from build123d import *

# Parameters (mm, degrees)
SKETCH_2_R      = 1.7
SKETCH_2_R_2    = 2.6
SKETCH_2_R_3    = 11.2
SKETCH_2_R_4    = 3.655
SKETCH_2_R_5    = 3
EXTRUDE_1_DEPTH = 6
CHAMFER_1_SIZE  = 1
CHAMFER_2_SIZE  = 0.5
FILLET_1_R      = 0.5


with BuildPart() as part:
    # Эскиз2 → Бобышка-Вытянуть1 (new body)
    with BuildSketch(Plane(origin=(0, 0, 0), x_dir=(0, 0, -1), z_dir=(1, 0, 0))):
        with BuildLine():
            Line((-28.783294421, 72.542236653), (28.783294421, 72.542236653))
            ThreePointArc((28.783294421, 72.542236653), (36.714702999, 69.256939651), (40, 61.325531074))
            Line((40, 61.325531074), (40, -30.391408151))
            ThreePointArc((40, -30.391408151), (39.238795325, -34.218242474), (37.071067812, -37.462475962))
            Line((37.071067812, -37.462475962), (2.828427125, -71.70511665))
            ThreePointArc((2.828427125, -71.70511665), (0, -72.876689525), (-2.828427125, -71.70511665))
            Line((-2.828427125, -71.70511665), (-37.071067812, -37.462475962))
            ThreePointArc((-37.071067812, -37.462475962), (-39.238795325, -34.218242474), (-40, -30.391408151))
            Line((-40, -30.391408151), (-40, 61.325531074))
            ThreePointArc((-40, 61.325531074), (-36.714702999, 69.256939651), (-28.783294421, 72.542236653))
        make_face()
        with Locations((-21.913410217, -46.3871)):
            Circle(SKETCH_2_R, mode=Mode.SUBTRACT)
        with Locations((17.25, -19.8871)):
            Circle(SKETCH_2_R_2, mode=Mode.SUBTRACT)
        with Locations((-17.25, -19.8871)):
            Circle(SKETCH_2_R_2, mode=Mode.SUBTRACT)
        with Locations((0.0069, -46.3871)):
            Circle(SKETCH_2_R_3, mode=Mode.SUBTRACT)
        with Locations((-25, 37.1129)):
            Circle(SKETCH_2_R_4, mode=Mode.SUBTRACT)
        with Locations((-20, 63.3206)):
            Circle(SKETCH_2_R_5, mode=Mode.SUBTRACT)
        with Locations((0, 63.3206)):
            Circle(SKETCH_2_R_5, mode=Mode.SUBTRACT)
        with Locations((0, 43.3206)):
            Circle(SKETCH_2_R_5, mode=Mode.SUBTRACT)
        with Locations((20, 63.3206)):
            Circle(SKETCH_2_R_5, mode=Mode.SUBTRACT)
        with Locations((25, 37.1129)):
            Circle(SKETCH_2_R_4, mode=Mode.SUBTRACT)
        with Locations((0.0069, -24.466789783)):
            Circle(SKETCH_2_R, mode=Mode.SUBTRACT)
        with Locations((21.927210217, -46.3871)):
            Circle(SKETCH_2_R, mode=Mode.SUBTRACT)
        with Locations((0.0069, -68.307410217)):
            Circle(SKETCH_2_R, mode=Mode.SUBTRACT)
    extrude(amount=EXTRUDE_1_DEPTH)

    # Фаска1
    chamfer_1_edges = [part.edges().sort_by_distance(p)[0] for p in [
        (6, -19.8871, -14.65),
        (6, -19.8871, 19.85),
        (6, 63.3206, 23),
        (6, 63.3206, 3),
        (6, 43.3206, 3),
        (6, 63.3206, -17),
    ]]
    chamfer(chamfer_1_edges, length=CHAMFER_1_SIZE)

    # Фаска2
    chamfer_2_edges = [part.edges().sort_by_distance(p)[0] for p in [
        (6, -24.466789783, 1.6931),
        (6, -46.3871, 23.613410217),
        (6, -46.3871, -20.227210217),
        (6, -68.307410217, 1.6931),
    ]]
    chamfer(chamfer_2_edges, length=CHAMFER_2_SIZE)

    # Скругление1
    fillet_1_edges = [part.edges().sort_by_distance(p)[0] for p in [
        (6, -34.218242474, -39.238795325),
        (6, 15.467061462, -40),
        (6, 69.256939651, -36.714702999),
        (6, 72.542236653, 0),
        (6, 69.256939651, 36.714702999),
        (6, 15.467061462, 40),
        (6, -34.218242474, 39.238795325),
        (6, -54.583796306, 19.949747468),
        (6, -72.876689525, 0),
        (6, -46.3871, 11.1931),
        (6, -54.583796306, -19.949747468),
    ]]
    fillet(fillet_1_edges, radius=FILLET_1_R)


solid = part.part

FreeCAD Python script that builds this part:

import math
import FreeCAD as App
import Part
import Sketcher

V = App.Vector


def edges_at(feature, points):
    """Names of the edges that pass closest to the given points."""
    edges = feature.Shape.Edges
    near = lambda p: min(range(len(edges)), key=lambda i: edges[i].distToShape(Part.Vertex(*p))[0])
    return sorted({f"Edge{near(p) + 1}" for p in points})

doc = App.newDocument("Part")
body = doc.addObject("PartDesign::Body", "Body")

# Sketch on YZ plane
sketch1 = body.newObject("Sketcher::SketchObject", "Sketch")
sketch1.AttachmentSupport = (doc.getObject("YZ_Plane"), [""])
sketch1.MapMode = "FlatFace"
sketch1.addGeometry([
    Part.LineSegment(V(72.5, -28.8, 0), V(72.5, 28.8, 0)),  # 0
    Part.ArcOfCircle(Part.Circle(V(61.3, 28.8, 0), V(0, 0, 1), 11.2), math.radians(0), math.radians(90)),  # 1
    Part.LineSegment(V(61.3, 40, 0), V(-30.4, 40, 0)),  # 2
    Part.ArcOfCircle(Part.Circle(V(-30.4, 30, 0), V(0, 0, 1), 10), math.radians(90), math.radians(135)),  # 3
    Part.LineSegment(V(-37.5, 37.1, 0), V(-71.7, 2.8, 0)),  # 4
    Part.ArcOfCircle(Part.Circle(V(-68.9, 0, 0), V(0, 0, 1), 4), math.radians(135), math.radians(225)),  # 5
    Part.LineSegment(V(-71.7, -2.8, 0), V(-37.5, -37.1, 0)),  # 6
    Part.ArcOfCircle(Part.Circle(V(-30.4, -30, 0), V(0, 0, 1), 10), math.radians(-135), math.radians(-90)),  # 7
    Part.LineSegment(V(-30.4, -40, 0), V(61.3, -40, 0)),  # 8
    Part.ArcOfCircle(Part.Circle(V(61.3, -28.8, 0), V(0, 0, 1), 11.2), math.radians(-90), math.radians(0)),  # 9
    Part.Circle(V(-46.4, -21.9, 0), V(0, 0, 1), 1.7),  # 10
    Part.Circle(V(-68.3, 0, 0), V(0, 0, 1), 1.7),  # 11
    Part.Circle(V(-46.4, 0, 0), V(0, 0, 1), 11.2),  # 12
    Part.Circle(V(-19.9, -17.2, 0), V(0, 0, 1), 2.6),  # 13
    Part.Circle(V(-24.5, 0, 0), V(0, 0, 1), 1.7),  # 14
    Part.Circle(V(-46.4, 21.9, 0), V(0, 0, 1), 1.7),  # 15
    Part.Circle(V(-19.9, 17.2, 0), V(0, 0, 1), 2.6),  # 16
    Part.Circle(V(37.1, -25, 0), V(0, 0, 1), 3.7),  # 17
    Part.Circle(V(63.3, -20, 0), V(0, 0, 1), 3),  # 18
    Part.Circle(V(43.3, 0, 0), V(0, 0, 1), 3),  # 19
    Part.Circle(V(63.3, 0, 0), V(0, 0, 1), 3),  # 20
    Part.Circle(V(37.1, 25, 0), V(0, 0, 1), 3.7),  # 21
    Part.Circle(V(63.3, 20, 0), V(0, 0, 1), 3),  # 22
], False)
sketch1.addConstraint([
    Sketcher.Constraint("Tangent", 0, 2, 1, 1),
    Sketcher.Constraint("Tangent", 1, 2, 2, 1),
    Sketcher.Constraint("Tangent", 2, 2, 3, 1),
    Sketcher.Constraint("Tangent", 3, 2, 4, 1),
    Sketcher.Constraint("Tangent", 4, 2, 5, 1),
    Sketcher.Constraint("Tangent", 5, 2, 6, 1),
    Sketcher.Constraint("Tangent", 6, 2, 7, 1),
    Sketcher.Constraint("Tangent", 7, 2, 8, 1),
    Sketcher.Constraint("Tangent", 8, 2, 9, 1),
    Sketcher.Constraint("Tangent", 9, 2, 0, 1),
    Sketcher.Constraint("Vertical", 0),
    Sketcher.Constraint("Horizontal", 2),
    Sketcher.Constraint("Horizontal", 8),
    Sketcher.Constraint("Equal", 3, 7),
    Sketcher.Constraint("Equal", 1, 9),
    Sketcher.Constraint("Equal", 10, 11),
    Sketcher.Constraint("Equal", 11, 14),
    Sketcher.Constraint("Equal", 14, 15),
    Sketcher.Constraint("Equal", 13, 16),
    Sketcher.Constraint("Equal", 18, 19),
    Sketcher.Constraint("Equal", 19, 20),
    Sketcher.Constraint("Equal", 17, 21),
    Sketcher.Constraint("Equal", 20, 22),
    Sketcher.Constraint("Symmetric", 3, 3, 7, 3, -1),
    Sketcher.Constraint("Symmetric", 13, 3, 16, 3, -1),
    Sketcher.Constraint("Symmetric", 17, 3, 21, 3, -1),
    Sketcher.Constraint("Symmetric", 18, 3, 22, 3, -1),
    Sketcher.Constraint("PointOnObject", 5, 3, -1),
    Sketcher.Constraint("PointOnObject", 19, 3, -1),
    Sketcher.Constraint("PointOnObject", 20, 3, -1),
    Sketcher.Constraint("Perpendicular", 4, 6),
    Sketcher.Constraint("Horizontal", 11, 3, 12, 3),
    Sketcher.Constraint("Horizontal", 12, 3, 14, 3),
    Sketcher.Constraint("Vertical", 10, 3, 12, 3),
    Sketcher.Constraint("Vertical", 12, 3, 15, 3),
    Sketcher.Constraint("Vertical", 18, 3, 20, 3),
    Sketcher.Constraint("Diameter", 18, 6.0),
    Sketcher.Constraint("Radius", 3, 10.0),
    Sketcher.Constraint("Radius", 5, 4.0),
    Sketcher.Constraint("Diameter", 10, 3.4),
    Sketcher.Constraint("Diameter", 12, 22.4),
    Sketcher.Constraint("Diameter", 13, 5.2),
    Sketcher.Constraint("Diameter", 17, 7.31),
    Sketcher.Constraint("DistanceY", -1, 1, 3, 3, 30.0),
    Sketcher.Constraint("DistanceY", 17, 3, -1, 1, 25.0),
    Sketcher.Constraint("DistanceY", 18, 3, -1, 1, 20.0),
    Sketcher.Constraint("DistanceX", 13, 3, 17, 3, 57.0),
    Sketcher.Constraint("DistanceX", 19, 3, 18, 3, 20.0),
    Sketcher.Constraint("DistanceX", 10, 3, 13, 3, 26.5),
    Sketcher.Constraint("DistanceY", 13, 3, 16, 3, 34.5),
    Sketcher.Constraint("Radius", 1, 11.216706),
    Sketcher.Constraint("DistanceX", 2, 2, 2, 1, 91.716939),
    Sketcher.Constraint("DistanceX", 10, 3, -1, 1, 46.3871),
    Sketcher.Constraint("DistanceY", 11, 3, -1, 1, 0.0069),
    Sketcher.Constraint("DistanceX", -1, 1, 18, 3, 63.3206),
    Sketcher.Constraint("DistanceX", -1, 1, 1, 3, 61.325531),
    Sketcher.Constraint("DistanceY", 10, 3, -1, 1, 21.92721),
    Sketcher.Constraint("DistanceX", 11, 3, -1, 1, 68.30741),
    Sketcher.Constraint("DistanceX", 14, 3, -1, 1, 24.46679),
    Sketcher.Constraint("DistanceY", -1, 1, 15, 3, 21.91341),
])
pad1 = body.newObject("PartDesign::Pad", "Pad")
pad1.Profile = sketch1
pad1.Length = 6
doc.recompute()

chamfer = body.newObject("PartDesign::Chamfer", "Chamfer")
chamfer.Base = (pad1, edges_at(pad1, [
    (6, -19.887, -14.65),
    (6, -19.887, 19.85),
    (6, 63.321, 23),
    (6, 63.321, 3),
    (6, 43.321, 3),
    (6, 63.321, -17),
]))
chamfer.Size = 1
doc.recompute()

chamfer2 = body.newObject("PartDesign::Chamfer", "Chamfer001")
chamfer2.Base = (chamfer, edges_at(chamfer, [
    (6, -24.467, 1.693),
    (6, -46.387, 23.613),
    (6, -46.387, -20.227),
    (6, -68.307, 1.693),
]))
chamfer2.Size = 0.5
doc.recompute()

fillet = body.newObject("PartDesign::Fillet", "Fillet")
fillet.Base = (chamfer2, edges_at(chamfer2, [
    (6, -34.218, -39.239),
    (6, 15.467, -40),
    (6, 69.257, -36.715),
    (6, 72.542, 0),
    (6, 69.257, 36.715),
    (6, 15.467, 40),
    (6, -34.218, 39.239),
    (6, -54.584, 19.95),
    (6, -72.877, 0),
    (6, -46.387, 11.193),
    (6, -54.584, -19.95),
]))
fillet.Radius = 0.5

doc.recompute()
